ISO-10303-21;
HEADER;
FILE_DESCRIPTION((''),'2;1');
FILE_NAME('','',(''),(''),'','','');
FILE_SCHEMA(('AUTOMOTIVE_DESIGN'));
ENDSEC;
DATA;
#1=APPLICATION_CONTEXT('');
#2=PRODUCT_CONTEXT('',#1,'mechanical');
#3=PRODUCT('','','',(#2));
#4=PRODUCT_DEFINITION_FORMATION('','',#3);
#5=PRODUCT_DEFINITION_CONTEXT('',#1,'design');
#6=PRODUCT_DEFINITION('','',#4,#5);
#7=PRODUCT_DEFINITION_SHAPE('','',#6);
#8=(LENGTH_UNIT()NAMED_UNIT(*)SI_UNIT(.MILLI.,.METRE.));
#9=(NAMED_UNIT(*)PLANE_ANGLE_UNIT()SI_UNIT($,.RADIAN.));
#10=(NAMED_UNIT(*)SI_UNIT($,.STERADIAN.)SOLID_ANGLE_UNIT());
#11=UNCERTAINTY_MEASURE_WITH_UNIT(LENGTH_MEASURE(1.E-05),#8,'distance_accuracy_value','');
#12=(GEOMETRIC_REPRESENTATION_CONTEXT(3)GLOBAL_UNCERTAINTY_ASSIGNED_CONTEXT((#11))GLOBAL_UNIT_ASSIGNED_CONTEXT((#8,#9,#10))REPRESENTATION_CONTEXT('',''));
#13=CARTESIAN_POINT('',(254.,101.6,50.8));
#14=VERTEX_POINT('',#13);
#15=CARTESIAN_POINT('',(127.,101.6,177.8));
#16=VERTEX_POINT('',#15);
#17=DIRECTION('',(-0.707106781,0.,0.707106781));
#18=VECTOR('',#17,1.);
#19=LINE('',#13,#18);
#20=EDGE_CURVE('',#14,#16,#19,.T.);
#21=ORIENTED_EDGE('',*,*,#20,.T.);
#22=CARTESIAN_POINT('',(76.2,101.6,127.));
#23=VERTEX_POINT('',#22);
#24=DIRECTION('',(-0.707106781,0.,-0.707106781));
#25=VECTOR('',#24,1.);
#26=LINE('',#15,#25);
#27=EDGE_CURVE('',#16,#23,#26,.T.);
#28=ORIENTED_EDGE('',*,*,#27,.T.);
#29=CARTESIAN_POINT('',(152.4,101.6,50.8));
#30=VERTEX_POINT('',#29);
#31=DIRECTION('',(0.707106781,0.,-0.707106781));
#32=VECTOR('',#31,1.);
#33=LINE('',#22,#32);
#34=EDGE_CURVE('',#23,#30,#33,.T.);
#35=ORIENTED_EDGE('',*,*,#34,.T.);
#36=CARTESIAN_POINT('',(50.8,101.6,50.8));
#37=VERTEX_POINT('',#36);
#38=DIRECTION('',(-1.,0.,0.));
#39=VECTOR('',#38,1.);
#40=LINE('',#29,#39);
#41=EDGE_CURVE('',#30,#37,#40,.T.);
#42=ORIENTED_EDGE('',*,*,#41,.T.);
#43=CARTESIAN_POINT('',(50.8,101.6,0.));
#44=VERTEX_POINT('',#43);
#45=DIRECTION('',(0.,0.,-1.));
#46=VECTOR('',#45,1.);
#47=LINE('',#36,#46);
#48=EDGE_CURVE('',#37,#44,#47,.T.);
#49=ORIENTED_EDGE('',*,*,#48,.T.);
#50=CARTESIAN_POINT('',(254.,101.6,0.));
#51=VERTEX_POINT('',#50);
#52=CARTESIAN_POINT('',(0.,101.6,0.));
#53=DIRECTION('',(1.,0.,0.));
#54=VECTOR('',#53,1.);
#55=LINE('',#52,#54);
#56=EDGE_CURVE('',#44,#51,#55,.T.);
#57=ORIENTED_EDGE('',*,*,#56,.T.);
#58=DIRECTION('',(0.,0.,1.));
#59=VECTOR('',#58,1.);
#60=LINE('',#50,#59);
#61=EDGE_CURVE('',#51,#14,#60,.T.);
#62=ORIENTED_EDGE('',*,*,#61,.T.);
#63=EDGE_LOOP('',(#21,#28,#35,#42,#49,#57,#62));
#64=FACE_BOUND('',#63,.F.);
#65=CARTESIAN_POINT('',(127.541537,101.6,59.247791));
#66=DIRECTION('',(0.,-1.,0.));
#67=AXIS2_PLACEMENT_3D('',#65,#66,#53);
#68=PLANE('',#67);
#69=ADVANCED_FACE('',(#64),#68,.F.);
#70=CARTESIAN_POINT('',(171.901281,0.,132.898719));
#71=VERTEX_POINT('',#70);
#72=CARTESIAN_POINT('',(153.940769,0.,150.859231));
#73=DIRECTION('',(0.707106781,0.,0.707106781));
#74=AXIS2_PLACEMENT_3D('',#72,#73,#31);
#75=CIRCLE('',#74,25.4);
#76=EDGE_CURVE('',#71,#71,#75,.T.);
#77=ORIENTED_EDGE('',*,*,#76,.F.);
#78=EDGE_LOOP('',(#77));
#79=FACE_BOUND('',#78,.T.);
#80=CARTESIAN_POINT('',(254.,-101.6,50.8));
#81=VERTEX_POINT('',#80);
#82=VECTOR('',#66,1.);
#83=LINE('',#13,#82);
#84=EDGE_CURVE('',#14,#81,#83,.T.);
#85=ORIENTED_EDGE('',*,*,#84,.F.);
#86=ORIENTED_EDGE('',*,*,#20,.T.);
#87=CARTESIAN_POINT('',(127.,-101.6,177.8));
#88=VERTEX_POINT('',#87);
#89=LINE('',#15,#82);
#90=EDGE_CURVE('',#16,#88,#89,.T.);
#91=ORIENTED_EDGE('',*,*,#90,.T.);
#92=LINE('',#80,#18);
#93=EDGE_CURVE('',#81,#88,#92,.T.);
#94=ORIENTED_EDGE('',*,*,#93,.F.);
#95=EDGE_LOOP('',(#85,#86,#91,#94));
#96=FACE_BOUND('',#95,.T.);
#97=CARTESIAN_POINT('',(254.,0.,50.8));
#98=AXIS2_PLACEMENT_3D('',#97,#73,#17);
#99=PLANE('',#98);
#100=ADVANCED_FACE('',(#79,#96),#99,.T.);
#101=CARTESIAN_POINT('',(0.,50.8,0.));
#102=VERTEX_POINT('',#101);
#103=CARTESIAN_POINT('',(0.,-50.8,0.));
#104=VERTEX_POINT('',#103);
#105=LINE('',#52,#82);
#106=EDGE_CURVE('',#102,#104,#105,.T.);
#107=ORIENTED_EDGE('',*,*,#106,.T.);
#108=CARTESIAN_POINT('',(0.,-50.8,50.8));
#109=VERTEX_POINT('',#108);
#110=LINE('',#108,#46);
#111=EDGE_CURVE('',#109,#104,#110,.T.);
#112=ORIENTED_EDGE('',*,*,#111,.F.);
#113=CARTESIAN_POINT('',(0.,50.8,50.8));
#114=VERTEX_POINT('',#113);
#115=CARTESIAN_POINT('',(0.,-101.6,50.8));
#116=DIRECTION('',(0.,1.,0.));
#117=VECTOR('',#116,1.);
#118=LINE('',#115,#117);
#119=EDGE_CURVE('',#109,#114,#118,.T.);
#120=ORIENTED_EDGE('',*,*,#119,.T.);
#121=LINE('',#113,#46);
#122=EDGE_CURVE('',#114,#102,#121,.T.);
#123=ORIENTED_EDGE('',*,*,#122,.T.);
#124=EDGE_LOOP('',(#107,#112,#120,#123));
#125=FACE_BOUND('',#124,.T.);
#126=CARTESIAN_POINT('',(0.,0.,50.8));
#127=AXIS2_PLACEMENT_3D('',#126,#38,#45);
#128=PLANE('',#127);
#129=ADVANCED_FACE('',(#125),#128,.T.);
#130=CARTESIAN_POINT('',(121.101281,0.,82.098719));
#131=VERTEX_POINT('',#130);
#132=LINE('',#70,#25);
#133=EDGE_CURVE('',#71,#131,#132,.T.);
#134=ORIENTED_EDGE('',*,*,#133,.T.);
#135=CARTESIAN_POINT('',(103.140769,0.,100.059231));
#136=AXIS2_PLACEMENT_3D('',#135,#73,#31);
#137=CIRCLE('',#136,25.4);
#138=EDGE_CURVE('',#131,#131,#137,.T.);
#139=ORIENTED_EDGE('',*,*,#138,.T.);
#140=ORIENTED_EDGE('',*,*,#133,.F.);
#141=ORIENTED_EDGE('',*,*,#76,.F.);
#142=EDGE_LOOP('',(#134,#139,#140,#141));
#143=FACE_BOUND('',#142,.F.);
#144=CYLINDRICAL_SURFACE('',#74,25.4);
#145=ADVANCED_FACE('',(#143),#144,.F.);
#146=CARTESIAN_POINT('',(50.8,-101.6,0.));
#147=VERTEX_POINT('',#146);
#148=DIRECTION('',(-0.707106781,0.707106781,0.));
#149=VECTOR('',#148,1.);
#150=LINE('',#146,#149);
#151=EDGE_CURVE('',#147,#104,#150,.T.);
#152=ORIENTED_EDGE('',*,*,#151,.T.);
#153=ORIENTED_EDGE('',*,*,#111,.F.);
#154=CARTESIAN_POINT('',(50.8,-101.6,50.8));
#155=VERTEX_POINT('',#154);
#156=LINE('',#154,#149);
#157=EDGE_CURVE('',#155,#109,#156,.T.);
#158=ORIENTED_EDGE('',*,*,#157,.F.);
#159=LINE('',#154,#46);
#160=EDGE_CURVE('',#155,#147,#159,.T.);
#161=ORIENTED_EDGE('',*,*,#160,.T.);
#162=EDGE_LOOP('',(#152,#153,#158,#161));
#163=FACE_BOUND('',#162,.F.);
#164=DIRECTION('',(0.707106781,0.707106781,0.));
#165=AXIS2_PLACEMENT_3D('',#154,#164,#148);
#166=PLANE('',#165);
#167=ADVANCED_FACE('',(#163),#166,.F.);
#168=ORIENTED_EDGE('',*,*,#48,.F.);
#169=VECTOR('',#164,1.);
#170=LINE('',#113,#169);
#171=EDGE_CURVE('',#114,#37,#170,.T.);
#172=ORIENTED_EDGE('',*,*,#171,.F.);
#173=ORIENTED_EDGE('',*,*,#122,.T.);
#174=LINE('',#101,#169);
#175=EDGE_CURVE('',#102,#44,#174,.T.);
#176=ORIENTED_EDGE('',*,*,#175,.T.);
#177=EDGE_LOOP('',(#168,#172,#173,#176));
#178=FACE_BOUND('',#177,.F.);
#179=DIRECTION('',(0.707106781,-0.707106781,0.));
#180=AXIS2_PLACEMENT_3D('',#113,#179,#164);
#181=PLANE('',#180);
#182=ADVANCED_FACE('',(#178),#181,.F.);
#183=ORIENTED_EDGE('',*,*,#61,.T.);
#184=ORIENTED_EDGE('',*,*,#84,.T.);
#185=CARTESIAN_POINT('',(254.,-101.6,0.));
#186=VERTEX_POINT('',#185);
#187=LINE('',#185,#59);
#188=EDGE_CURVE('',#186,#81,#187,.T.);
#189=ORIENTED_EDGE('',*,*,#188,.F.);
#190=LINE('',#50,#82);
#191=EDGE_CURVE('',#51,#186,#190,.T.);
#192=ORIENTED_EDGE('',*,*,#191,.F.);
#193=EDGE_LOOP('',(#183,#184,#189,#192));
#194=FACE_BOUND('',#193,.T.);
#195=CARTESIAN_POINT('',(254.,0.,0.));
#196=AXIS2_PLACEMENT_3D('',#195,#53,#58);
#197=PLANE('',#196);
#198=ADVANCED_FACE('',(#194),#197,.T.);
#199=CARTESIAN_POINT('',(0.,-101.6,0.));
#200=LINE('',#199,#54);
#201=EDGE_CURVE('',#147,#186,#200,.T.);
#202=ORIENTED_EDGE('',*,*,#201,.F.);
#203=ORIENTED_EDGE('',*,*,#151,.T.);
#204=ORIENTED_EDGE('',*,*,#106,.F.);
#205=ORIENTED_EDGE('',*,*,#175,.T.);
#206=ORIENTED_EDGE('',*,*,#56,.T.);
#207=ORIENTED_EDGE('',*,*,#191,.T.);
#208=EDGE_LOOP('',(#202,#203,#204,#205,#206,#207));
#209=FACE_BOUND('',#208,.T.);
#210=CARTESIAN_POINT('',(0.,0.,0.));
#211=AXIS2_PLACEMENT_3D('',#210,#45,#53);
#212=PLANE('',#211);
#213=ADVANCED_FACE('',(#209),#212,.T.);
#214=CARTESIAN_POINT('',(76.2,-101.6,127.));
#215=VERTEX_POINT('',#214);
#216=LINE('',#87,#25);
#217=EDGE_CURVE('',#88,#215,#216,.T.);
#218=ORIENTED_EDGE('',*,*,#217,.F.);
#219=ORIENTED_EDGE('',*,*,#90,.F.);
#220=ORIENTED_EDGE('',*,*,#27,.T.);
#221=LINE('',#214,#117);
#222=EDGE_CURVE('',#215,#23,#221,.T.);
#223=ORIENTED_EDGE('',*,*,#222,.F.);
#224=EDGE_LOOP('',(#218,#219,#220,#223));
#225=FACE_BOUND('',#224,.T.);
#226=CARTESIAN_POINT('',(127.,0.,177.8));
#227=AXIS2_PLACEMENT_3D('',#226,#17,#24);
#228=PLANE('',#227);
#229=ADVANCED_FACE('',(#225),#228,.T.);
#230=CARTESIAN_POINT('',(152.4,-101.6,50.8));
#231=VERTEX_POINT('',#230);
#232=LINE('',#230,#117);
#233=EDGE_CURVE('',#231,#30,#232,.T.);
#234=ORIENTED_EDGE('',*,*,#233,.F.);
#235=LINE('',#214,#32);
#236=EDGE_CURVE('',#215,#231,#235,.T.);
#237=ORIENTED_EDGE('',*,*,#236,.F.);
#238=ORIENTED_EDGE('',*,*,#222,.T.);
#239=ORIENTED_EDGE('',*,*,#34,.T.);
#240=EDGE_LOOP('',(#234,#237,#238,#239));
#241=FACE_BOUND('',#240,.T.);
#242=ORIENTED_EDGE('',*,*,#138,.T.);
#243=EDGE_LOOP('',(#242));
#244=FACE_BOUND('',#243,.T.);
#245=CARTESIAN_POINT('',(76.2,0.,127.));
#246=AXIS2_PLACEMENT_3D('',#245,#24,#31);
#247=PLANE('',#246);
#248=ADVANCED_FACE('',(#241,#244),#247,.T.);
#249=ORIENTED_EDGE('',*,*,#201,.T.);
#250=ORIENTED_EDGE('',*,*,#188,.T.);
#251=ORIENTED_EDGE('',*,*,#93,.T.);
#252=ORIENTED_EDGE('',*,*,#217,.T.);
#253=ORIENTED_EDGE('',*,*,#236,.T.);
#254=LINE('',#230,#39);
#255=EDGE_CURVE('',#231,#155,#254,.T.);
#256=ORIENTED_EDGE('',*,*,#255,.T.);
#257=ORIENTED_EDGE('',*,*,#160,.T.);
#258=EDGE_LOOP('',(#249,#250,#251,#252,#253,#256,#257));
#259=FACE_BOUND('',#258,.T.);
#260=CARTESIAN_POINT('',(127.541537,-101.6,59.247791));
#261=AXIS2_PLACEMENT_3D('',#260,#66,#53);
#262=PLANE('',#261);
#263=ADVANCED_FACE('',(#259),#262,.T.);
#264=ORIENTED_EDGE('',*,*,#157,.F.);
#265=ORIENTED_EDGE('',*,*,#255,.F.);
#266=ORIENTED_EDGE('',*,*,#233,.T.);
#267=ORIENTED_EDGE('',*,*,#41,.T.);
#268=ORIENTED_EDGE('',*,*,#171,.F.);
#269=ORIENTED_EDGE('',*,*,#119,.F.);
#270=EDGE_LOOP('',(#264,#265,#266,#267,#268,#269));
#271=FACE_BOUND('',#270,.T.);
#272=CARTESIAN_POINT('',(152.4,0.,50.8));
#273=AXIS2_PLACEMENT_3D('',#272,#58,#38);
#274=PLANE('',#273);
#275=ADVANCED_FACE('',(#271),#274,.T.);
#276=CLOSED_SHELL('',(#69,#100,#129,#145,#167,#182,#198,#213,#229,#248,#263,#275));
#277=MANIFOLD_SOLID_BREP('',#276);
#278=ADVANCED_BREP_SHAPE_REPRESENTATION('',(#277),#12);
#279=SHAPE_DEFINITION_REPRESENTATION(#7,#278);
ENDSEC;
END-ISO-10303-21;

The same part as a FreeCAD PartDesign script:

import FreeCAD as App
import Part
import Sketcher
Q = App.Units.Quantity


def add_polygon(sketch, points):
    """Adds a closed chain of lines whose ends are joined by coincident constraints."""
    first, n = sketch.GeometryCount, len(points)
    for a, b in zip(points, points[1:] + points[:1]):
        sketch.addGeometry(Part.LineSegment(App.Vector(*a, 0), App.Vector(*b, 0)), False)
    for i in range(n):
        sketch.addConstraint(Sketcher.Constraint("Coincident", first + i, 2, first + (i + 1) % n, 1))

doc = App.newDocument("Part")
body = doc.addObject("PartDesign::Body", "Body")

sketch1 = doc.addObject("Sketcher::SketchObject", "Sketch")
body.addObject(sketch1)
sketch1.AttachmentSupport = (doc.XZ_Plane, [""])
sketch1.MapMode = "FlatFace"
add_polygon(sketch1, [(0, 51), (0, 0), (254, 0), (254, 51), (127, 178), (76, 127), (152, 51)])
sketch1.addConstraint([
    Sketcher.Constraint("Vertical", 0),
    Sketcher.Constraint("Horizontal", 1),
    Sketcher.Constraint("Vertical", 2),
    Sketcher.Constraint("Horizontal", 6),
    Sketcher.Constraint("Coincident", 0, 2, -1, 1),
    Sketcher.Constraint("Perpendicular", 3, 4),
    Sketcher.Constraint("Perpendicular", 4, 5),
    Sketcher.Constraint("Horizontal", 2, 2, 5, 2),
    Sketcher.Constraint("DistanceX", 1, 1, 1, 2, Q("10 in")),
    Sketcher.Constraint("DistanceX", 6, 2, 6, 1, Q("6 in")),
    Sketcher.Constraint("DistanceY", 0, 2, 0, 1, Q("2 in")),
    Sketcher.Constraint("DistanceX", -1, 1, 3, 2, Q("5 in")),
    Sketcher.Constraint("DistanceY", -1, 1, 3, 2, Q("7 in")),
])
pad1 = doc.addObject("PartDesign::Pad", "Pad")
body.addObject(pad1)
pad1.Profile = sketch1
pad1.Length = Q("8 in")
pad1.Midplane = True

sketch2 = doc.addObject("Sketcher::SketchObject", "Sketch001")
body.addObject(sketch2)
sketch2.AttachmentSupport = (doc.XY_Plane, [""])
sketch2.MapMode = "FlatFace"
sketch2.AttachmentOffset = App.Placement(App.Vector(0, 0, 2 * 25.4), App.Rotation())
add_polygon(sketch2, [(0, 102), (0, 51), (51, 102)])
add_polygon(sketch2, [(51, -102), (0, -51), (0, -102)])
sketch2.addConstraint([
    Sketcher.Constraint("Vertical", 0),
    Sketcher.Constraint("Horizontal", 2),
    Sketcher.Constraint("Vertical", 4),
    Sketcher.Constraint("Horizontal", 5),
    Sketcher.Constraint("Symmetric", 0, 2, 3, 2, -1, 1),
    Sketcher.Constraint("Symmetric", 2, 2, 4, 2, -1),
    Sketcher.Constraint("Perpendicular", 1, 3),
    Sketcher.Constraint("Vertical", 1, 2, 5, 2),
    Sketcher.Constraint("DistanceX", 2, 2, 2, 1, Q("2 in")),
    Sketcher.Constraint("DistanceY", -1, 1, 0, 2, Q("2 in")),
])
pocket1 = doc.addObject("PartDesign::Pocket", "Pocket")
body.addObject(pocket1)
pocket1.Profile = sketch2
pocket1.Length = Q("2 in")

sketch3 = doc.addObject("Sketcher::SketchObject", "Sketch002")
body.addObject(sketch3)
sketch3.Placement = App.Placement(App.Vector(152.4, 0, 152.4), App.Rotation(App.Vector(0.707106781, 0, -0.707106781), App.Vector(0, 0.999999999, 0), App.Vector(0.707106781, 0, 0.707106781), "ZXY"))
sketch3.addGeometry(Part.Circle(App.Vector(2, 0, 0), App.Vector(0, 0, 1), 25), False)
sketch3.addConstraint([
    Sketcher.Constraint("PointOnObject", 0, 3, -1),
    Sketcher.Constraint("Diameter", 0, Q("2 in")),
    Sketcher.Constraint("DistanceX", -1, 1, 0, 3, 2.178976),
])
pocket2 = doc.addObject("PartDesign::Pocket", "Pocket001")
body.addObject(pocket2)
pocket2.Profile = sketch3
pocket2.Length = Q("3.5 in")

doc.recompute()
